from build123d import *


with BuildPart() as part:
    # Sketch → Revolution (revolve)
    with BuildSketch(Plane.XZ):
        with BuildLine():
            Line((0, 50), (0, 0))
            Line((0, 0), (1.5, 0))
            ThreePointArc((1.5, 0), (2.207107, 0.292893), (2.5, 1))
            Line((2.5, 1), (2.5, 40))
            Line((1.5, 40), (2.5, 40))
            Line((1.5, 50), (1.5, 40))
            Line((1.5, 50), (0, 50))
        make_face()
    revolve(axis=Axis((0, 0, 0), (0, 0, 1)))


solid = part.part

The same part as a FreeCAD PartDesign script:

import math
import FreeCAD as App
import Part
import Sketcher
from FreeCAD import Vector

doc = App.newDocument("Part")
body = doc.addObject("PartDesign::Body", "Body")

sketch1 = doc.addObject("Sketcher::SketchObject", "Sketch")
body.addObject(sketch1)
sketch1.AttachmentSupport = (doc.XZ_Plane, [""])
sketch1.MapMode = "FlatFace"
sketch1.addGeometry([
    Part.LineSegment(Vector(0, 50, 0), Vector(0, 0, 0)),
    Part.LineSegment(Vector(0, 0, 0), Vector(1.5, 0, 0)),
    Part.ArcOfCircle(Part.Circle(Vector(1.500001, 0.999999, 0), Vector(0, 0, 1), 0.999999), math.radians(-90.000043), math.radians(0.000043)),
    Part.LineSegment(Vector(2.5, 1, 0), Vector(2.5, 40, 0)),
    Part.LineSegment(Vector(2.5, 40, 0), Vector(1.5, 40, 0)),
    Part.LineSegment(Vector(1.5, 40, 0), Vector(1.5, 50, 0)),
    Part.LineSegment(Vector(1.5, 50, 0), Vector(0, 50, 0)),
], False)
sketch1.addConstraint([
    Sketcher.Constraint("Coincident", 0, 2, 1, 1),
    Sketcher.Constraint("Tangent", 1, 2, 2, 1),
    Sketcher.Constraint("Tangent", 2, 2, 3, 1),
    Sketcher.Constraint("Coincident", 3, 2, 4, 1),
    Sketcher.Constraint("Coincident", 4, 2, 5, 1),
    Sketcher.Constraint("Coincident", 5, 2, 6, 1),
    Sketcher.Constraint("Coincident", 6, 2, 0, 1),
    Sketcher.Constraint("Vertical", 0),
    Sketcher.Constraint("Horizontal", 1),
    Sketcher.Constraint("Vertical", 3),
    Sketcher.Constraint("Horizontal", 4),
    Sketcher.Constraint("Vertical", 5),
    Sketcher.Constraint("Horizontal", 6),
    Sketcher.Constraint("Coincident", 0, 2, -1, 1),
    Sketcher.Constraint("Vertical", 1, 2, 4, 2),
    Sketcher.Constraint("Radius", 2, 0.999999),
    Sketcher.Constraint("DistanceY", 0, 2, 0, 1, 50.0),
    Sketcher.Constraint("DistanceY", 3, 1, 3, 2, 39.0),
    Sketcher.Constraint("DistanceX", 1, 1, 1, 2, 1.5),
])
revolution = doc.addObject("PartDesign::Revolution", "Revolution")
body.addObject(revolution)
revolution.Profile = sketch1
revolution.ReferenceAxis = (sketch1, ["V_Axis"])
revolution.Angle = 360

doc.recompute()
